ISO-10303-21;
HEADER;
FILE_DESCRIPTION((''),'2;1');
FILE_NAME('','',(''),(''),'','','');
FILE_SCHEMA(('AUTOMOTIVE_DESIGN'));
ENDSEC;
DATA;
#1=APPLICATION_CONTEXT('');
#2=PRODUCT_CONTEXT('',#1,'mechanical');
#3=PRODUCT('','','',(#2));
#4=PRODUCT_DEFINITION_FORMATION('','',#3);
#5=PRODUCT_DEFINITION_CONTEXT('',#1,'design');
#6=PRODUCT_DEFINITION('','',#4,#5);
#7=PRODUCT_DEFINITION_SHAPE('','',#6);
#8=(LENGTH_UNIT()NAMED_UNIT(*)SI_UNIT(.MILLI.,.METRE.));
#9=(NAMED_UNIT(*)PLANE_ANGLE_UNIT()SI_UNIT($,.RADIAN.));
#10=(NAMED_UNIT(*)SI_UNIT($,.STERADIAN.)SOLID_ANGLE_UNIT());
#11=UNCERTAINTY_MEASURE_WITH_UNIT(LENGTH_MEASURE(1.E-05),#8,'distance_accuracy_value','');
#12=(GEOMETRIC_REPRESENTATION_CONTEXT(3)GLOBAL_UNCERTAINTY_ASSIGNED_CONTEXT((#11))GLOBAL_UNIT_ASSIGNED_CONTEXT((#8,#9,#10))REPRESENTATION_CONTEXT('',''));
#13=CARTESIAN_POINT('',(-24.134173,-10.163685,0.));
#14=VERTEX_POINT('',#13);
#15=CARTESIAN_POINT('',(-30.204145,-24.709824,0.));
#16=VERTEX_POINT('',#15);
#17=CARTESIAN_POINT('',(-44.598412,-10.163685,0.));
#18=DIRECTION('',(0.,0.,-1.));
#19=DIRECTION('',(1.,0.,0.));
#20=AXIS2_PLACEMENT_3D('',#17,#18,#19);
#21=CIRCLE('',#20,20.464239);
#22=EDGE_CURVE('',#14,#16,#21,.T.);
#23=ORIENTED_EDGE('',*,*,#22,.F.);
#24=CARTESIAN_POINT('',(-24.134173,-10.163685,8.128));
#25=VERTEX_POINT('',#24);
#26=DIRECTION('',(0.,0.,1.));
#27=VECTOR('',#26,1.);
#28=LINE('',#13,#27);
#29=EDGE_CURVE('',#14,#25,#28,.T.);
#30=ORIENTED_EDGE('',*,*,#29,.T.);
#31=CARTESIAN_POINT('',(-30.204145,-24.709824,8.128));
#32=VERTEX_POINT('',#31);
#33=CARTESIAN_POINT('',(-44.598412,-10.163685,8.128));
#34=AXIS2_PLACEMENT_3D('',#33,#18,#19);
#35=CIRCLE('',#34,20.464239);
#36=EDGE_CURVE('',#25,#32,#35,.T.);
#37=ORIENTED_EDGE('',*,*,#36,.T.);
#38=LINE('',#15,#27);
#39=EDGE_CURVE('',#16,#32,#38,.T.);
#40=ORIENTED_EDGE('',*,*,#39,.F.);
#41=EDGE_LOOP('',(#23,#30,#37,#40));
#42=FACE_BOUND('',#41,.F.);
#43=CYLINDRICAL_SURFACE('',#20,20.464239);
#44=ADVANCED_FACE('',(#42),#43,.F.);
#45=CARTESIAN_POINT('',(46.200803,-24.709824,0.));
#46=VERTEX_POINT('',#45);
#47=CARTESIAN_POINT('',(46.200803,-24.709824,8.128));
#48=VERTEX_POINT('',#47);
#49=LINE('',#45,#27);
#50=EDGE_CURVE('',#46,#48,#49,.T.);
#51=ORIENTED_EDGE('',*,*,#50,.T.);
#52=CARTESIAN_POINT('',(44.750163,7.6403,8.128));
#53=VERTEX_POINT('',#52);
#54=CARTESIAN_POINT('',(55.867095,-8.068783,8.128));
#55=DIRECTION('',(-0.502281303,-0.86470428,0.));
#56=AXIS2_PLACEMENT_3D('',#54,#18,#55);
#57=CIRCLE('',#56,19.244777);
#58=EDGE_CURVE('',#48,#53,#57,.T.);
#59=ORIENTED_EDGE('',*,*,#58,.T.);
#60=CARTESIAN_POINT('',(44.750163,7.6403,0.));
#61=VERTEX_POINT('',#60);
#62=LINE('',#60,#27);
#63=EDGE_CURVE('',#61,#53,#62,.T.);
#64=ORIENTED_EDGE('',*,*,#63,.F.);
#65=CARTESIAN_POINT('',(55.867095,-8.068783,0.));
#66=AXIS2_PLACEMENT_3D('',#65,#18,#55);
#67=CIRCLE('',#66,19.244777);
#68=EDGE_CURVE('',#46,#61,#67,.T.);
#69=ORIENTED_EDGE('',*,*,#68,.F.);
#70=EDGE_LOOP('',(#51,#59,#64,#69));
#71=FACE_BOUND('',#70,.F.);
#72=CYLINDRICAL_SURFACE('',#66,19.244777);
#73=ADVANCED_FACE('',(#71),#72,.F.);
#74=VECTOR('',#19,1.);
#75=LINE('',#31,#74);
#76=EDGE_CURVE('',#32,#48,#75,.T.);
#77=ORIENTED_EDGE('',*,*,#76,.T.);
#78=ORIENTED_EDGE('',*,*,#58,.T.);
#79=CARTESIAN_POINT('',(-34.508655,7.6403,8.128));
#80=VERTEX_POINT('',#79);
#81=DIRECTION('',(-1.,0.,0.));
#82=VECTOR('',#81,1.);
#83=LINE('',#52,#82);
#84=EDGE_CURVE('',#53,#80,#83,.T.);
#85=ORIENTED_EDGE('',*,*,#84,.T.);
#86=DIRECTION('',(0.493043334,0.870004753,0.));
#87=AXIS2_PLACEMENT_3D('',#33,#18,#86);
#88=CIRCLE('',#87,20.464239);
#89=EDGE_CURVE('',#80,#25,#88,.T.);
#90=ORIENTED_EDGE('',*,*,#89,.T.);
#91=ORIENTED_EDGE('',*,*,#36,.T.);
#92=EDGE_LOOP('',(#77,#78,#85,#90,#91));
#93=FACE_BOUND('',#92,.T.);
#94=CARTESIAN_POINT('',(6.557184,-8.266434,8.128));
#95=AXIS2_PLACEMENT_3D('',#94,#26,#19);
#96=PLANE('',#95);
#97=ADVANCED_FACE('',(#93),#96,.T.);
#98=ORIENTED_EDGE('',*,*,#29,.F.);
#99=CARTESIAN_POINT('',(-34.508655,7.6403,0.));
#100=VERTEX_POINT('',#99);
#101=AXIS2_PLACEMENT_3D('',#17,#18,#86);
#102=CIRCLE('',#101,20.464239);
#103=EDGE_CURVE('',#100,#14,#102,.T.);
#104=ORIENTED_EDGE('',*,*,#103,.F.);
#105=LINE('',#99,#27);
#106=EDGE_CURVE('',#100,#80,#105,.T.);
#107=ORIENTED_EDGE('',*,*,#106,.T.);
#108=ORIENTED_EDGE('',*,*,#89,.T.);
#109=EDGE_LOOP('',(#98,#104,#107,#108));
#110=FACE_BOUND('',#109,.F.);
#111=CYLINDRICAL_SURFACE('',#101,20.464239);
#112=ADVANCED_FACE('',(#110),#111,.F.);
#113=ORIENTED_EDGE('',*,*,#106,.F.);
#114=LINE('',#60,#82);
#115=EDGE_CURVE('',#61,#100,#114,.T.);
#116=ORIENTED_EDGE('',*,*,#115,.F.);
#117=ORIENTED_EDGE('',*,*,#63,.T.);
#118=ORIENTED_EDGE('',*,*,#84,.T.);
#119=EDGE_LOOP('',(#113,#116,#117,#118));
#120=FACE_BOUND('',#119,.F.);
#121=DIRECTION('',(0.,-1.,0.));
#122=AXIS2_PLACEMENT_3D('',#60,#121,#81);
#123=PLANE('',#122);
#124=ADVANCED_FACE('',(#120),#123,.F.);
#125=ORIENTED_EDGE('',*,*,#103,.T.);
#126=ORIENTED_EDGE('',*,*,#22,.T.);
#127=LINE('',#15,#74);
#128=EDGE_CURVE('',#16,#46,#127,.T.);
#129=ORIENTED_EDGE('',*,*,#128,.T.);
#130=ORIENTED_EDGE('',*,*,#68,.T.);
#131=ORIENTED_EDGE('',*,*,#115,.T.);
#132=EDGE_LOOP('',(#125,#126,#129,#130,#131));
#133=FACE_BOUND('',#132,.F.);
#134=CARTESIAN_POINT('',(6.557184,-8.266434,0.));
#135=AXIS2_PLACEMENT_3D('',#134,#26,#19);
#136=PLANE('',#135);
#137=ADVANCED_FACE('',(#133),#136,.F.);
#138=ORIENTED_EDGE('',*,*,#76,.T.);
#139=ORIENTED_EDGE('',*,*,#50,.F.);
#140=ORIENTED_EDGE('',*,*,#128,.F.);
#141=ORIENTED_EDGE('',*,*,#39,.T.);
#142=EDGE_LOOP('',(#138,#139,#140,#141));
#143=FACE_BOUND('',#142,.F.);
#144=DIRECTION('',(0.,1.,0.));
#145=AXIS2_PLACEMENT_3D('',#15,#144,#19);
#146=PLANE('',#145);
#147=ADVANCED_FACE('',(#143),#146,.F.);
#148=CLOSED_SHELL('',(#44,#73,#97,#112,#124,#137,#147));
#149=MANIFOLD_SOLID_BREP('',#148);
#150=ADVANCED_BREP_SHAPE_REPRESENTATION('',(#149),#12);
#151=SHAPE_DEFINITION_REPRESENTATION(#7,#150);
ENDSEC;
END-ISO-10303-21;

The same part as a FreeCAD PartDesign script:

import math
import FreeCAD as App
import Part
import Sketcher
from FreeCAD import Vector
Q = App.Units.Quantity

doc = App.newDocument("Part")
body = doc.addObject("PartDesign::Body", "Body")

# Sketch on XY plane
sketch1 = doc.addObject("Sketcher::SketchObject", "Sketch")
body.addObject(sketch1)
sketch1.AttachmentSupport = (doc.XY_Plane, [""])
sketch1.MapMode = "FlatFace"
sketch1.addGeometry(Part.LineSegment(Vector(44.750163, 7.6403, 0), Vector(-34.508655, 7.6403, 0)), False)
sketch1.addGeometry(Part.ArcOfCircle(Part.Circle(Vector(-44.598412, -10.163685, 0), Vector(0, 0, 1), 20.464239), math.radians(0), math.radians(60.459192)), False)
sketch1.addGeometry(Part.ArcOfCircle(Part.Circle(Vector(-44.598412, -10.163685, 0), Vector(0, 0, 1), 20.464239), math.radians(-45.300672), math.radians(0)), False)
sketch1.addGeometry(Part.LineSegment(Vector(-30.204145, -24.709824, 0), Vector(46.200803, -24.709824, 0)), False)
sketch1.addGeometry(Part.ArcOfCircle(Part.Circle(Vector(55.867095, -8.068783, 0), Vector(0, 0, 1), 19.244777), math.radians(125.286103), math.radians(239.848955)), False)
sketch1.addConstraint(Sketcher.Constraint("Coincident", 0, 2, 1, 2))
sketch1.addConstraint(Sketcher.Constraint("Tangent", 1, 1, 2, 2))
sketch1.addConstraint(Sketcher.Constraint("Coincident", 2, 1, 3, 1))
sketch1.addConstraint(Sketcher.Constraint("Coincident", 3, 2, 4, 2))
sketch1.addConstraint(Sketcher.Constraint("Coincident", 4, 1, 0, 1))
sketch1.addConstraint(Sketcher.Constraint("Horizontal", 0))
sketch1.addConstraint(Sketcher.Constraint("Horizontal", 3))
sketch1.addConstraint(Sketcher.Constraint("Equal", 1, 2))
sketch1.addConstraint(Sketcher.Constraint("Horizontal", 2, 3, 1, 1))
sketch1.addConstraint(Sketcher.Constraint("Radius", 1, 20.464239))
sketch1.addConstraint(Sketcher.Constraint("Radius", 4, 19.244777))
sketch1.addConstraint(Sketcher.Constraint("DistanceX", 0, 2, 0, 1, 79.258818))
sketch1.addConstraint(Sketcher.Constraint("DistanceY", -1, 1, 0, 2, 7.6403))
sketch1.addConstraint(Sketcher.Constraint("DistanceX", 3, 1, 3, 2, 76.404948))
sketch1.addConstraint(Sketcher.Constraint("DistanceX", 1, 3, -1, 1, 44.598412))
sketch1.addConstraint(Sketcher.Constraint("DistanceX", 0, 2, 4, 3, 90.37575))
sketch1.addConstraint(Sketcher.Constraint("DistanceX", 0, 2, 2, 1, 4.30451))
pad1 = doc.addObject("PartDesign::Pad", "Pad")
body.addObject(pad1)
pad1.Profile = sketch1
pad1.Length = Q("0.32 in")

doc.recompute()
